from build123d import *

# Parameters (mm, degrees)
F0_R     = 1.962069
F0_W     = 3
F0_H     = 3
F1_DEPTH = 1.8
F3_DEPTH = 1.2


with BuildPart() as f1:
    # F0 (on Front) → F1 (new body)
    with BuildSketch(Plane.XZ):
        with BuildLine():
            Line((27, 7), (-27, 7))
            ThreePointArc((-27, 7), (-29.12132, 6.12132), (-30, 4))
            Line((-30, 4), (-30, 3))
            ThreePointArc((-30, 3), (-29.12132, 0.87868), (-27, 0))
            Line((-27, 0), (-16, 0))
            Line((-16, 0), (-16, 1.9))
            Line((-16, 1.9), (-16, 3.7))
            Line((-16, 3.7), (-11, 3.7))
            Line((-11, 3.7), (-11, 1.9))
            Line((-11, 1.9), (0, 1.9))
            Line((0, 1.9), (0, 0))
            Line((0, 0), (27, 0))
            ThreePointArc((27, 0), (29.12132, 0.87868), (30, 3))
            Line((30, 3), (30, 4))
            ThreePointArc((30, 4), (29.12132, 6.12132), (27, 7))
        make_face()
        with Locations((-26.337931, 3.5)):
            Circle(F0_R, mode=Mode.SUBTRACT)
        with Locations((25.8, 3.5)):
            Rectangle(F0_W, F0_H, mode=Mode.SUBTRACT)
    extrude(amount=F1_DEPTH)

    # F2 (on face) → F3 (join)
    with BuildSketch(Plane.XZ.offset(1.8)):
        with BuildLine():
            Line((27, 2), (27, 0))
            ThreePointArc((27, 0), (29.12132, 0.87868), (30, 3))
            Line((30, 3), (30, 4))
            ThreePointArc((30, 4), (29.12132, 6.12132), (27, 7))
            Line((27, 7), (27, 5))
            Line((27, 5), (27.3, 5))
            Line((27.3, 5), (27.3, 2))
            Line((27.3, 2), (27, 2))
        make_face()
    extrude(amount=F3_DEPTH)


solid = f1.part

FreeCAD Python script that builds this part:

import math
import FreeCAD as App
import Part
import Sketcher
Q = App.Units.Quantity


def add_polygon(sketch, points):
    """Adds a closed chain of lines whose ends are joined by coincident constraints."""
    first, n = sketch.GeometryCount, len(points)
    for a, b in zip(points, points[1:] + points[:1]):
        sketch.addGeometry(Part.LineSegment(App.Vector(*a, 0), App.Vector(*b, 0)), False)
    for i in range(n):
        sketch.addConstraint(Sketcher.Constraint("Coincident", first + i, 2, first + (i + 1) % n, 1))

doc = App.newDocument("Part")
body = doc.addObject("PartDesign::Body", "Body")

# Sketch on XZ plane
sketch1 = body.newObject("Sketcher::SketchObject", "Sketch")
sketch1.AttachmentSupport = (doc.getObject("XZ_Plane"), [""])
sketch1.MapMode = "FlatFace"
sketch1.addGeometry(Part.LineSegment(App.Vector(27, 7, 0), App.Vector(-27, 7, 0)), False)  # 0
sketch1.addGeometry(Part.ArcOfCircle(Part.Circle(App.Vector(-27, 4, 0), App.Vector(0, 0, 1), 3), math.radians(90), math.radians(180)), False)  # 1
sketch1.addGeometry(Part.LineSegment(App.Vector(-30, 4, 0), App.Vector(-30, 3, 0)), False)  # 2
sketch1.addGeometry(Part.ArcOfCircle(Part.Circle(App.Vector(-27, 3, 0), App.Vector(0, 0, 1), 3), math.radians(-180), math.radians(-90)), False)  # 3
sketch1.addGeometry(Part.LineSegment(App.Vector(-27, 0, 0), App.Vector(-16, 0, 0)), False)  # 4
sketch1.addGeometry(Part.LineSegment(App.Vector(-16, 0, 0), App.Vector(-16, 3.7, 0)), False)  # 5
sketch1.addGeometry(Part.LineSegment(App.Vector(-16, 3.7, 0), App.Vector(-11, 3.7, 0)), False)  # 6
sketch1.addGeometry(Part.LineSegment(App.Vector(-11, 3.7, 0), App.Vector(-11, 1.9, 0)), False)  # 7
sketch1.addGeometry(Part.LineSegment(App.Vector(-11, 1.9, 0), App.Vector(0, 1.9, 0)), False)  # 8
sketch1.addGeometry(Part.LineSegment(App.Vector(0, 1.9, 0), App.Vector(0, 0, 0)), False)  # 9
sketch1.addGeometry(Part.LineSegment(App.Vector(0, 0, 0), App.Vector(27, 0, 0)), False)  # 10
sketch1.addGeometry(Part.ArcOfCircle(Part.Circle(App.Vector(27, 3, 0), App.Vector(0, 0, 1), 3), math.radians(-90), math.radians(0)), False)  # 11
sketch1.addGeometry(Part.LineSegment(App.Vector(30, 3, 0), App.Vector(30, 4, 0)), False)  # 12
sketch1.addGeometry(Part.ArcOfCircle(Part.Circle(App.Vector(27, 4, 0), App.Vector(0, 0, 1), 3), math.radians(0), math.radians(90)), False)  # 13
sketch1.addGeometry(Part.Circle(App.Vector(-26.3, 3.5, 0), App.Vector(0, 0, 1), 2), False)  # 14
add_polygon(sketch1, [(27.3, 2), (24.3, 2), (24.3, 5), (27.3, 5)])  # lines 15-18
sketch1.addConstraint(Sketcher.Constraint("Tangent", 0, 2, 1, 1))
sketch1.addConstraint(Sketcher.Constraint("Tangent", 1, 2, 2, 1))
sketch1.addConstraint(Sketcher.Constraint("Tangent", 2, 2, 3, 1))
sketch1.addConstraint(Sketcher.Constraint("Tangent", 3, 2, 4, 1))
sketch1.addConstraint(Sketcher.Constraint("Coincident", 4, 2, 5, 1))
sketch1.addConstraint(Sketcher.Constraint("Coincident", 5, 2, 6, 1))
sketch1.addConstraint(Sketcher.Constraint("Coincident", 6, 2, 7, 1))
sketch1.addConstraint(Sketcher.Constraint("Coincident", 7, 2, 8, 1))
sketch1.addConstraint(Sketcher.Constraint("Coincident", 8, 2, 9, 1))
sketch1.addConstraint(Sketcher.Constraint("Coincident", 9, 2, 10, 1))
sketch1.addConstraint(Sketcher.Constraint("Tangent", 10, 2, 11, 1))
sketch1.addConstraint(Sketcher.Constraint("Tangent", 11, 2, 12, 1))
sketch1.addConstraint(Sketcher.Constraint("Tangent", 12, 2, 13, 1))
sketch1.addConstraint(Sketcher.Constraint("Tangent", 13, 2, 0, 1))
sketch1.addConstraint(Sketcher.Constraint("Horizontal", 0))
sketch1.addConstraint(Sketcher.Constraint("Vertical", 2))
sketch1.addConstraint(Sketcher.Constraint("Horizontal", 4))
sketch1.addConstraint(Sketcher.Constraint("Vertical", 5))
sketch1.addConstraint(Sketcher.Constraint("Horizontal", 6))
sketch1.addConstraint(Sketcher.Constraint("Vertical", 7))
sketch1.addConstraint(Sketcher.Constraint("Horizontal", 8))
sketch1.addConstraint(Sketcher.Constraint("Vertical", 9))
sketch1.addConstraint(Sketcher.Constraint("Horizontal", 10))
sketch1.addConstraint(Sketcher.Constraint("Vertical", 12))
sketch1.addConstraint(Sketcher.Constraint("Horizontal", 15))
sketch1.addConstraint(Sketcher.Constraint("Vertical", 16))
sketch1.addConstraint(Sketcher.Constraint("Horizontal", 17))
sketch1.addConstraint(Sketcher.Constraint("Vertical", 18))
sketch1.addConstraint(Sketcher.Constraint("Coincident", 9, 2, -1, 1))
sketch1.addConstraint(Sketcher.Constraint("Equal", 1, 3))
sketch1.addConstraint(Sketcher.Constraint("Equal", 3, 11))
sketch1.addConstraint(Sketcher.Constraint("Equal", 11, 13))
sketch1.addConstraint(Sketcher.Constraint("Symmetric", 3, 2, 10, 2, -1, 1))
sketch1.addConstraint(Sketcher.Constraint("Equal", 4, 8))
sketch1.addConstraint(Sketcher.Constraint("Equal", 17, 16))
sketch1.addConstraint(Sketcher.Constraint("Radius", 1, Q("3.000001 mm")))
sketch1.addConstraint(Sketcher.Constraint("DistanceX", 0, 2, 0, 1, Q("54 mm")))
sketch1.addConstraint(Sketcher.Constraint("DistanceX", 4, 1, 4, 2, Q("11 mm")))
sketch1.addConstraint(Sketcher.Constraint("DistanceX", 15, 2, 15, 1, Q("3 mm")))
sketch1.addConstraint(Sketcher.Constraint("DistanceY", 2, 2, 2, 1, Q("1 mm")))
sketch1.addConstraint(Sketcher.Constraint("DistanceY", 5, 1, 5, 2, Q("3.7 mm")))
sketch1.addConstraint(Sketcher.Constraint("DistanceY", 7, 2, 7, 1, Q("1.8 mm")))
sketch1.addConstraint(Sketcher.Constraint("DistanceY", -1, 1, 15, 2, Q("2 mm")))
sketch1.addConstraint(Sketcher.Constraint("DistanceY", -1, 1, 14, 3, Q("3.5 mm")))
sketch1.addConstraint(Sketcher.Constraint("DistanceX", -1, 1, 15, 2, Q("24.3 mm")))
sketch1.addConstraint(Sketcher.Constraint("Diameter", 14, Q("3.924138 mm")))
sketch1.addConstraint(Sketcher.Constraint("DistanceX", 14, 3, -1, 1, Q("26.337931 mm")))
pad1 = body.newObject("PartDesign::Pad", "Pad")
pad1.Profile = sketch1
pad1.Length = 1.8

# Sketch on XZ plane
sketch2 = body.newObject("Sketcher::SketchObject", "Sketch001")
sketch2.AttachmentSupport = (doc.getObject("XZ_Plane"), [""])
sketch2.MapMode = "FlatFace"
sketch2.AttachmentOffset = App.Placement(App.Vector(0, 0, 1.8), App.Rotation())
sketch2.addGeometry(Part.LineSegment(App.Vector(27, 2, 0), App.Vector(27, 0, 0)), False)
sketch2.addGeometry(Part.ArcOfCircle(Part.Circle(App.Vector(27, 3, 0), App.Vector(0, 0, 1), 3), math.radians(-90), math.radians(0)), False)
sketch2.addGeometry(Part.LineSegment(App.Vector(30, 3, 0), App.Vector(30, 4, 0)), False)
sketch2.addGeometry(Part.ArcOfCircle(Part.Circle(App.Vector(27, 4, 0), App.Vector(0, 0, 1), 3), math.radians(0), math.radians(90)), False)
sketch2.addGeometry(Part.LineSegment(App.Vector(27, 7, 0), App.Vector(27, 5, 0)), False)
sketch2.addGeometry(Part.LineSegment(App.Vector(27, 5, 0), App.Vector(27.3, 5, 0)), False)
sketch2.addGeometry(Part.LineSegment(App.Vector(27.3, 5, 0), App.Vector(27.3, 2, 0)), False)
sketch2.addGeometry(Part.LineSegment(App.Vector(27.3, 2, 0), App.Vector(27, 2, 0)), False)
sketch2.addConstraint(Sketcher.Constraint("Coincident", 0, 2, 1, 1))
sketch2.addConstraint(Sketcher.Constraint("Tangent", 1, 2, 2, 1))
sketch2.addConstraint(Sketcher.Constraint("Tangent", 2, 2, 3, 1))
sketch2.addConstraint(Sketcher.Constraint("Coincident", 3, 2, 4, 1))
sketch2.addConstraint(Sketcher.Constraint("Coincident", 4, 2, 5, 1))
sketch2.addConstraint(Sketcher.Constraint("Coincident", 5, 2, 6, 1))
sketch2.addConstraint(Sketcher.Constraint("Coincident", 6, 2, 7, 1))
sketch2.addConstraint(Sketcher.Constraint("Coincident", 7, 2, 0, 1))
sketch2.addConstraint(Sketcher.Constraint("Vertical", 0))
sketch2.addConstraint(Sketcher.Constraint("Vertical", 2))
sketch2.addConstraint(Sketcher.Constraint("Vertical", 4))
sketch2.addConstraint(Sketcher.Constraint("Horizontal", 5))
sketch2.addConstraint(Sketcher.Constraint("Vertical", 6))
sketch2.addConstraint(Sketcher.Constraint("Horizontal", 7))
sketch2.addConstraint(Sketcher.Constraint("Equal", 1, 3))
sketch2.addConstraint(Sketcher.Constraint("PointOnObject", 0, 2, -1))
sketch2.addConstraint(Sketcher.Constraint("Vertical", 3, 3, 0, 2))
sketch2.addConstraint(Sketcher.Constraint("Vertical", 0, 2, 3, 2))
sketch2.addConstraint(Sketcher.Constraint("Equal", 0, 4))
sketch2.addConstraint(Sketcher.Constraint("Radius", 1, Q("3.000001 mm")))
sketch2.addConstraint(Sketcher.Constraint("DistanceY", 0, 2, 0, 1, Q("2 mm")))
sketch2.addConstraint(Sketcher.Constraint("DistanceY", 2, 1, 2, 2, Q("1 mm")))
sketch2.addConstraint(Sketcher.Constraint("DistanceX", 5, 1, 5, 2, Q("0.3 mm")))
sketch2.addConstraint(Sketcher.Constraint("DistanceX", -1, 1, 1, 3, Q("26.999999 mm")))
pad2 = body.newObject("PartDesign::Pad", "Pad001")
pad2.Profile = sketch2
pad2.Length = 1.2

doc.recompute()
